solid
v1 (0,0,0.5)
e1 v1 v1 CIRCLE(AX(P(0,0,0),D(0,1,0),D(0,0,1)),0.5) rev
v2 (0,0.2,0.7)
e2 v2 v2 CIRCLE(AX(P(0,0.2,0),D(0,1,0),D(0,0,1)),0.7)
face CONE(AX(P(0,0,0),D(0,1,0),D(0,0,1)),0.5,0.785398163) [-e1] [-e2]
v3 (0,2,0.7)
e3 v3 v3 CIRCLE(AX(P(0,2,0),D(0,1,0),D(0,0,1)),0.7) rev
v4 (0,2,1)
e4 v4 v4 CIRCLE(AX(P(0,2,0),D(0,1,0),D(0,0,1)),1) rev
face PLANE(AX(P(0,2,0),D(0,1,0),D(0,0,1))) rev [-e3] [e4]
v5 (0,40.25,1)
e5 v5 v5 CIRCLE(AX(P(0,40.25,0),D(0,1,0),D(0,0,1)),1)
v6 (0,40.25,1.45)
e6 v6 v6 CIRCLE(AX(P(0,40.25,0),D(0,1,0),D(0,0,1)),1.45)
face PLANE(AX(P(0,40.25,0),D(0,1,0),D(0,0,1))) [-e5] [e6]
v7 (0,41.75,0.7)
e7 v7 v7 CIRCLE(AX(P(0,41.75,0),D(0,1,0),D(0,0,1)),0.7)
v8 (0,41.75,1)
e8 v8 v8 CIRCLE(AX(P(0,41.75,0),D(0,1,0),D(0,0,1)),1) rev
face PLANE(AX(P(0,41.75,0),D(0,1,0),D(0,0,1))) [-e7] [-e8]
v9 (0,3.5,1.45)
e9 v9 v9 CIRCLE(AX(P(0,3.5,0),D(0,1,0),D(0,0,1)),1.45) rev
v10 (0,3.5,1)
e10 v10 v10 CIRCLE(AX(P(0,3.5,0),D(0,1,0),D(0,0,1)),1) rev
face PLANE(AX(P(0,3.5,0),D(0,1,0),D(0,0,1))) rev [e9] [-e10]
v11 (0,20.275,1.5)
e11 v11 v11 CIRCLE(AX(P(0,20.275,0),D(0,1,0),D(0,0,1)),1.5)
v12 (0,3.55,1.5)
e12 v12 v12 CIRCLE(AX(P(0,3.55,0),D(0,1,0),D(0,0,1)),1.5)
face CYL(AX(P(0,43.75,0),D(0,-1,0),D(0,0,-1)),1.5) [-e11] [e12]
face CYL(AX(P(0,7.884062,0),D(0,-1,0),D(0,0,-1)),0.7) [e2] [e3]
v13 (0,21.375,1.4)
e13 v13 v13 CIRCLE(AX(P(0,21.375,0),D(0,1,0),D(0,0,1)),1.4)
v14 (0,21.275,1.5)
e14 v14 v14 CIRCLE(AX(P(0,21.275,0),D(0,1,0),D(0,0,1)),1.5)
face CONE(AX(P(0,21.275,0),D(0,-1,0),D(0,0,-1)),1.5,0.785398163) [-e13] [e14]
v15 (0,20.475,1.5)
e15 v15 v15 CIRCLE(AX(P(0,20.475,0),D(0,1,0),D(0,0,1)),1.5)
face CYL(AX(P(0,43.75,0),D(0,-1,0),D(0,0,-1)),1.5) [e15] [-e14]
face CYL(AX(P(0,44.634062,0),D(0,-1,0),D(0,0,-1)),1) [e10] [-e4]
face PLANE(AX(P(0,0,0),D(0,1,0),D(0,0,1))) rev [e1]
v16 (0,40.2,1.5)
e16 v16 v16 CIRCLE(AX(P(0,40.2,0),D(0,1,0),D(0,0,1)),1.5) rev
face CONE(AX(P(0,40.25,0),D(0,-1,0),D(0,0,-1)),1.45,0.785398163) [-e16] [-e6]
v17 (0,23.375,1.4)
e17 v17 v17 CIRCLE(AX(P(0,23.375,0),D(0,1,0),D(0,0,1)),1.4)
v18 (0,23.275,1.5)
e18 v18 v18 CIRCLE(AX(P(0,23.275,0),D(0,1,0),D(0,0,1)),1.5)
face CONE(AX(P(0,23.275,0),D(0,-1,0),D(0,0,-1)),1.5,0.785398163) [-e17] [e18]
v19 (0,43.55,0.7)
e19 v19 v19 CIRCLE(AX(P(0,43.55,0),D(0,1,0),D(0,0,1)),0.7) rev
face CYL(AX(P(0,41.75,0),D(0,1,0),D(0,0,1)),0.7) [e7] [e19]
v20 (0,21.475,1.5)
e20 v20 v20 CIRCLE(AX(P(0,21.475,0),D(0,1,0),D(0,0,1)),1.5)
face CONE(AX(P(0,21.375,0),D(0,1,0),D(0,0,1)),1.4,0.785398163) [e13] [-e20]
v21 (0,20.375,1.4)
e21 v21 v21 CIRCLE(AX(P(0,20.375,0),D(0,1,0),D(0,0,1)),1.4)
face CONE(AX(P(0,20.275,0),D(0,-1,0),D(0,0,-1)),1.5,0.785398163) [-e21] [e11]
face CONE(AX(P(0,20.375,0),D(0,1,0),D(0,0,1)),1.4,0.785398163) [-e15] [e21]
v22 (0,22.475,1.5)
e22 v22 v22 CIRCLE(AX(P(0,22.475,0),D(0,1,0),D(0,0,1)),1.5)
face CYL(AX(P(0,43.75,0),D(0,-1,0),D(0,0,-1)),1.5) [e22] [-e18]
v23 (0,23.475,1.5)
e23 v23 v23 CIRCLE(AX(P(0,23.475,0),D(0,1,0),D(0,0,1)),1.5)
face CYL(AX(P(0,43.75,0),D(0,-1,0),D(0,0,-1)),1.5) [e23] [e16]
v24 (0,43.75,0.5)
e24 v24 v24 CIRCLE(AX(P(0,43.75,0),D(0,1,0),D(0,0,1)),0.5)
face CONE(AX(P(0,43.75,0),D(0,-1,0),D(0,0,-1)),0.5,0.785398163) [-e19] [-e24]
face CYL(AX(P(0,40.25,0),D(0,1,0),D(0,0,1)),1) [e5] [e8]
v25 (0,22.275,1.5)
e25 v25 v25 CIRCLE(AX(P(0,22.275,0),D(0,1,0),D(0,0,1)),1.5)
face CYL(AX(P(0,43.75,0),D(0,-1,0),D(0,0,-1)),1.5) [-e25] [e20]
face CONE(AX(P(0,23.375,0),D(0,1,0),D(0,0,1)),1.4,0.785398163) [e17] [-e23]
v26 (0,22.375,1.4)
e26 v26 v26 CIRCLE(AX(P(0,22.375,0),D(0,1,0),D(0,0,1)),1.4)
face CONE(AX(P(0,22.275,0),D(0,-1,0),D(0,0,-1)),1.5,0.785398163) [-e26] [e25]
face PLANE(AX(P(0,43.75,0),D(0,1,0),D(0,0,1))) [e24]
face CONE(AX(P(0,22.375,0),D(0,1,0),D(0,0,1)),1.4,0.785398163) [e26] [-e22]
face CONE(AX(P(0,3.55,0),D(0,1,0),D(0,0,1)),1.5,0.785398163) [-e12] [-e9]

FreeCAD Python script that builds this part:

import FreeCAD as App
import Part
import Sketcher

V = App.Vector
Q = App.Units.Quantity


def edges_at(feature, points):
    """Names of the edges that pass closest to the given points."""
    edges = feature.Shape.Edges
    near = lambda p: min(range(len(edges)), key=lambda i: edges[i].distToShape(Part.Vertex(*p))[0])
    return sorted({f"Edge{near(p) + 1}" for p in points})

doc = App.newDocument("Part")
body = doc.addObject("PartDesign::Body", "Body")

sketch1 = doc.addObject("Sketcher::SketchObject", "Sketch")
body.addObject(sketch1)
sketch1.AttachmentSupport = (doc.XZ_Plane, [""])
sketch1.MapMode = "FlatFace"
sketch1.addGeometry(Part.Circle(V(0, 0, 0), V(0, 0, 1), 1.5), False)
sketch1.addConstraint([
    Sketcher.Constraint("Coincident", 0, 3, -1, 1),
    Sketcher.Constraint("Diameter", 0, Q("3 mm")),
])
pad1 = doc.addObject("PartDesign::Pad", "Pad")
body.addObject(pad1)
pad1.Profile = sketch1
pad1.Length = 43.75
pad1.Reversed = True

sketch2 = doc.addObject("Sketcher::SketchObject", "Sketch001")
body.addObject(sketch2)
sketch2.AttachmentSupport = (doc.XZ_Plane, [""])
sketch2.MapMode = "FlatFace"
sketch2.AttachmentOffset = App.Placement(V(0, 0, -43.75), App.Rotation())
sketch2.addGeometry([
    Part.LineSegment(V(-6.9, -6.9, 0), V(-6.9, 6.9, 0)),
    Part.LineSegment(V(-6.9, 6.9, 0), V(6.9, 6.9, 0)),
    Part.LineSegment(V(6.9, 6.9, 0), V(6.9, -6.9, 0)),
    Part.LineSegment(V(6.9, -6.9, 0), V(-6.9, -6.9, 0)),
    Part.Circle(V(0, 0, 0), V(0, 0, 1), 1),
], False)
sketch2.addConstraint([
    Sketcher.Constraint("Coincident", 0, 2, 1, 1),
    Sketcher.Constraint("Coincident", 1, 2, 2, 1),
    Sketcher.Constraint("Coincident", 2, 2, 3, 1),
    Sketcher.Constraint("Coincident", 3, 2, 0, 1),
    Sketcher.Constraint("Vertical", 0),
    Sketcher.Constraint("Horizontal", 1),
    Sketcher.Constraint("Vertical", 2),
    Sketcher.Constraint("Horizontal", 3),
    Sketcher.Constraint("Coincident", 4, 3, -1, 1),
    Sketcher.Constraint("Symmetric", 0, 2, 2, 2, -1, 1),
    Sketcher.Constraint("Equal", 3, 0),
    Sketcher.Constraint("Diameter", 4, Q("2 mm")),
    Sketcher.Constraint("DistanceX", 1, 1, 1, 2, Q("13.792 mm")),
])
pocket1 = doc.addObject("PartDesign::Pocket", "Pocket")
body.addObject(pocket1)
pocket1.Profile = sketch2
pocket1.Length = 3.5
pocket1.Reversed = True

sketch3 = doc.addObject("Sketcher::SketchObject", "Sketch002")
body.addObject(sketch3)
sketch3.AttachmentSupport = (doc.XZ_Plane, [""])
sketch3.MapMode = "FlatFace"
sketch3.AttachmentOffset = App.Placement(V(0, 0, -43.75), App.Rotation())
sketch3.addGeometry([
    Part.LineSegment(V(-6.9, -6.9, 0), V(-6.9, 6.9, 0)),
    Part.LineSegment(V(-6.9, 6.9, 0), V(6.9, 6.9, 0)),
    Part.LineSegment(V(6.9, 6.9, 0), V(6.9, -6.9, 0)),
    Part.LineSegment(V(6.9, -6.9, 0), V(-6.9, -6.9, 0)),
    Part.Circle(V(0, 0, 0), V(0, 0, 1), 0.7),
], False)
sketch3.addConstraint([
    Sketcher.Constraint("Coincident", 0, 2, 1, 1),
    Sketcher.Constraint("Coincident", 1, 2, 2, 1),
    Sketcher.Constraint("Coincident", 2, 2, 3, 1),
    Sketcher.Constraint("Coincident", 3, 2, 0, 1),
    Sketcher.Constraint("Vertical", 0),
    Sketcher.Constraint("Horizontal", 1),
    Sketcher.Constraint("Vertical", 2),
    Sketcher.Constraint("Horizontal", 3),
    Sketcher.Constraint("Coincident", 4, 3, -1, 1),
    Sketcher.Constraint("Symmetric", 0, 2, 2, 2, -1, 1),
    Sketcher.Constraint("Equal", 3, 0),
    Sketcher.Constraint("Diameter", 4, Q("1.4 mm")),
    Sketcher.Constraint("DistanceX", 1, 1, 1, 2, Q("13.792 mm")),
])
pocket2 = doc.addObject("PartDesign::Pocket", "Pocket001")
body.addObject(pocket2)
pocket2.Profile = sketch3
pocket2.Length = 2
pocket2.Reversed = True

sketch4 = doc.addObject("Sketcher::SketchObject", "Sketch003")
body.addObject(sketch4)
sketch4.AttachmentSupport = (doc.XZ_Plane, [""])
sketch4.MapMode = "FlatFace"
sketch4.addGeometry([
    Part.LineSegment(V(-6.9, 6.9, 0), V(-6.9, -6.9, 0)),
    Part.LineSegment(V(-6.9, -6.9, 0), V(6.9, -6.9, 0)),
    Part.LineSegment(V(6.9, -6.9, 0), V(6.9, 6.9, 0)),
    Part.LineSegment(V(6.9, 6.9, 0), V(-6.9, 6.9, 0)),
    Part.Circle(V(0, 0, 0), V(0, 0, 1), 1),
], False)
sketch4.addConstraint([
    Sketcher.Constraint("Coincident", 0, 2, 1, 1),
    Sketcher.Constraint("Coincident", 1, 2, 2, 1),
    Sketcher.Constraint("Coincident", 2, 2, 3, 1),
    Sketcher.Constraint("Coincident", 3, 2, 0, 1),
    Sketcher.Constraint("Vertical", 0),
    Sketcher.Constraint("Horizontal", 1),
    Sketcher.Constraint("Vertical", 2),
    Sketcher.Constraint("Horizontal", 3),
    Sketcher.Constraint("Coincident", 4, 3, -1, 1),
    Sketcher.Constraint("Symmetric", 0, 2, 2, 2, -1, 1),
    Sketcher.Constraint("Equal", 3, 0),
    Sketcher.Constraint("Diameter", 4, Q("2 mm")),
    Sketcher.Constraint("DistanceX", 1, 1, 1, 2, Q("13.792 mm")),
])
pocket3 = doc.addObject("PartDesign::Pocket", "Pocket002")
body.addObject(pocket3)
pocket3.Profile = sketch4
pocket3.Length = 3.5

sketch5 = doc.addObject("Sketcher::SketchObject", "Sketch004")
body.addObject(sketch5)
sketch5.AttachmentSupport = (doc.XZ_Plane, [""])
sketch5.MapMode = "FlatFace"
sketch5.addGeometry([
    Part.LineSegment(V(-6.9, 6.9, 0), V(-6.9, -6.9, 0)),
    Part.LineSegment(V(-6.9, -6.9, 0), V(6.9, -6.9, 0)),
    Part.LineSegment(V(6.9, -6.9, 0), V(6.9, 6.9, 0)),
    Part.LineSegment(V(6.9, 6.9, 0), V(-6.9, 6.9, 0)),
    Part.Circle(V(0, 0, 0), V(0, 0, 1), 0.7),
], False)
sketch5.addConstraint([
    Sketcher.Constraint("Coincident", 0, 2, 1, 1),
    Sketcher.Constraint("Coincident", 1, 2, 2, 1),
    Sketcher.Constraint("Coincident", 2, 2, 3, 1),
    Sketcher.Constraint("Coincident", 3, 2, 0, 1),
    Sketcher.Constraint("Vertical", 0),
    Sketcher.Constraint("Horizontal", 1),
    Sketcher.Constraint("Vertical", 2),
    Sketcher.Constraint("Horizontal", 3),
    Sketcher.Constraint("Coincident", 4, 3, -1, 1),
    Sketcher.Constraint("Symmetric", 0, 2, 2, 2, -1, 1),
    Sketcher.Constraint("Equal", 3, 0),
    Sketcher.Constraint("Diameter", 4, Q("1.4 mm")),
    Sketcher.Constraint("DistanceX", 1, 1, 1, 2, Q("13.792 mm")),
])
pocket4 = doc.addObject("PartDesign::Pocket", "Pocket003")
body.addObject(pocket4)
pocket4.Profile = sketch5
pocket4.Length = 2

sketch6 = doc.addObject("Sketcher::SketchObject", "Sketch005")
body.addObject(sketch6)
sketch6.AttachmentSupport = (doc.XY_Plane, [""])
sketch6.MapMode = "FlatFace"
sketch6.addGeometry([
    Part.LineSegment(V(-1.4, 23.38, 0), V(-1.5, 23.48, 0)),
    Part.LineSegment(V(-1.5, 23.48, 0), V(-1.5, 23.27, 0)),
    Part.LineSegment(V(-1.5, 23.27, 0), V(-1.4, 23.38, 0)),
], False)
sketch6.addConstraint([
    Sketcher.Constraint("Coincident", 0, 2, 1, 1),
    Sketcher.Constraint("Coincident", 1, 2, 2, 1),
    Sketcher.Constraint("Coincident", 2, 2, 0, 1),
    Sketcher.Constraint("Vertical", 1),
    Sketcher.Constraint("Perpendicular", 0, 2),
    Sketcher.Constraint("Equal", 0, 2),
    Sketcher.Constraint("DistanceY", 1, 2, 1, 1, Q("0.2 mm")),
    Sketcher.Constraint("DistanceX", 0, 2, -1, 1, Q("1.5 mm")),
    Sketcher.Constraint("DistanceY", -1, 1, 0, 2, Q("23.475 mm")),
])
groove = doc.addObject("PartDesign::Groove", "Groove")
body.addObject(groove)
groove.Profile = sketch6
groove.ReferenceAxis = (sketch6, ["V_Axis"])
groove.Angle = 360
doc.recompute()

linearpattern = doc.addObject("PartDesign::LinearPattern", "LinearPattern")
body.addObject(linearpattern)
linearpattern.Originals = [groove]
linearpattern.Direction = (doc.Y_Axis, [""])
linearpattern.Mode = "offset"
linearpattern.Offset = 1
linearpattern.Occurrences = 4
linearpattern.Reversed = True
body.Tip = linearpattern
doc.recompute()

chamfer = doc.addObject("PartDesign::Chamfer", "Chamfer")
body.addObject(chamfer)
chamfer.Base = (linearpattern, edges_at(linearpattern, [(-0.7, 43.75, 0), (-0.7, 0, 0)]))
chamfer.Size = 0.2
doc.recompute()

chamfer2 = doc.addObject("PartDesign::Chamfer", "Chamfer001")
body.addObject(chamfer2)
chamfer2.Base = (chamfer, edges_at(chamfer, [(-1.5, 3.5, 0), (-1.5, 40.25, 0)]))
chamfer2.Size = 0.05

doc.recompute()
